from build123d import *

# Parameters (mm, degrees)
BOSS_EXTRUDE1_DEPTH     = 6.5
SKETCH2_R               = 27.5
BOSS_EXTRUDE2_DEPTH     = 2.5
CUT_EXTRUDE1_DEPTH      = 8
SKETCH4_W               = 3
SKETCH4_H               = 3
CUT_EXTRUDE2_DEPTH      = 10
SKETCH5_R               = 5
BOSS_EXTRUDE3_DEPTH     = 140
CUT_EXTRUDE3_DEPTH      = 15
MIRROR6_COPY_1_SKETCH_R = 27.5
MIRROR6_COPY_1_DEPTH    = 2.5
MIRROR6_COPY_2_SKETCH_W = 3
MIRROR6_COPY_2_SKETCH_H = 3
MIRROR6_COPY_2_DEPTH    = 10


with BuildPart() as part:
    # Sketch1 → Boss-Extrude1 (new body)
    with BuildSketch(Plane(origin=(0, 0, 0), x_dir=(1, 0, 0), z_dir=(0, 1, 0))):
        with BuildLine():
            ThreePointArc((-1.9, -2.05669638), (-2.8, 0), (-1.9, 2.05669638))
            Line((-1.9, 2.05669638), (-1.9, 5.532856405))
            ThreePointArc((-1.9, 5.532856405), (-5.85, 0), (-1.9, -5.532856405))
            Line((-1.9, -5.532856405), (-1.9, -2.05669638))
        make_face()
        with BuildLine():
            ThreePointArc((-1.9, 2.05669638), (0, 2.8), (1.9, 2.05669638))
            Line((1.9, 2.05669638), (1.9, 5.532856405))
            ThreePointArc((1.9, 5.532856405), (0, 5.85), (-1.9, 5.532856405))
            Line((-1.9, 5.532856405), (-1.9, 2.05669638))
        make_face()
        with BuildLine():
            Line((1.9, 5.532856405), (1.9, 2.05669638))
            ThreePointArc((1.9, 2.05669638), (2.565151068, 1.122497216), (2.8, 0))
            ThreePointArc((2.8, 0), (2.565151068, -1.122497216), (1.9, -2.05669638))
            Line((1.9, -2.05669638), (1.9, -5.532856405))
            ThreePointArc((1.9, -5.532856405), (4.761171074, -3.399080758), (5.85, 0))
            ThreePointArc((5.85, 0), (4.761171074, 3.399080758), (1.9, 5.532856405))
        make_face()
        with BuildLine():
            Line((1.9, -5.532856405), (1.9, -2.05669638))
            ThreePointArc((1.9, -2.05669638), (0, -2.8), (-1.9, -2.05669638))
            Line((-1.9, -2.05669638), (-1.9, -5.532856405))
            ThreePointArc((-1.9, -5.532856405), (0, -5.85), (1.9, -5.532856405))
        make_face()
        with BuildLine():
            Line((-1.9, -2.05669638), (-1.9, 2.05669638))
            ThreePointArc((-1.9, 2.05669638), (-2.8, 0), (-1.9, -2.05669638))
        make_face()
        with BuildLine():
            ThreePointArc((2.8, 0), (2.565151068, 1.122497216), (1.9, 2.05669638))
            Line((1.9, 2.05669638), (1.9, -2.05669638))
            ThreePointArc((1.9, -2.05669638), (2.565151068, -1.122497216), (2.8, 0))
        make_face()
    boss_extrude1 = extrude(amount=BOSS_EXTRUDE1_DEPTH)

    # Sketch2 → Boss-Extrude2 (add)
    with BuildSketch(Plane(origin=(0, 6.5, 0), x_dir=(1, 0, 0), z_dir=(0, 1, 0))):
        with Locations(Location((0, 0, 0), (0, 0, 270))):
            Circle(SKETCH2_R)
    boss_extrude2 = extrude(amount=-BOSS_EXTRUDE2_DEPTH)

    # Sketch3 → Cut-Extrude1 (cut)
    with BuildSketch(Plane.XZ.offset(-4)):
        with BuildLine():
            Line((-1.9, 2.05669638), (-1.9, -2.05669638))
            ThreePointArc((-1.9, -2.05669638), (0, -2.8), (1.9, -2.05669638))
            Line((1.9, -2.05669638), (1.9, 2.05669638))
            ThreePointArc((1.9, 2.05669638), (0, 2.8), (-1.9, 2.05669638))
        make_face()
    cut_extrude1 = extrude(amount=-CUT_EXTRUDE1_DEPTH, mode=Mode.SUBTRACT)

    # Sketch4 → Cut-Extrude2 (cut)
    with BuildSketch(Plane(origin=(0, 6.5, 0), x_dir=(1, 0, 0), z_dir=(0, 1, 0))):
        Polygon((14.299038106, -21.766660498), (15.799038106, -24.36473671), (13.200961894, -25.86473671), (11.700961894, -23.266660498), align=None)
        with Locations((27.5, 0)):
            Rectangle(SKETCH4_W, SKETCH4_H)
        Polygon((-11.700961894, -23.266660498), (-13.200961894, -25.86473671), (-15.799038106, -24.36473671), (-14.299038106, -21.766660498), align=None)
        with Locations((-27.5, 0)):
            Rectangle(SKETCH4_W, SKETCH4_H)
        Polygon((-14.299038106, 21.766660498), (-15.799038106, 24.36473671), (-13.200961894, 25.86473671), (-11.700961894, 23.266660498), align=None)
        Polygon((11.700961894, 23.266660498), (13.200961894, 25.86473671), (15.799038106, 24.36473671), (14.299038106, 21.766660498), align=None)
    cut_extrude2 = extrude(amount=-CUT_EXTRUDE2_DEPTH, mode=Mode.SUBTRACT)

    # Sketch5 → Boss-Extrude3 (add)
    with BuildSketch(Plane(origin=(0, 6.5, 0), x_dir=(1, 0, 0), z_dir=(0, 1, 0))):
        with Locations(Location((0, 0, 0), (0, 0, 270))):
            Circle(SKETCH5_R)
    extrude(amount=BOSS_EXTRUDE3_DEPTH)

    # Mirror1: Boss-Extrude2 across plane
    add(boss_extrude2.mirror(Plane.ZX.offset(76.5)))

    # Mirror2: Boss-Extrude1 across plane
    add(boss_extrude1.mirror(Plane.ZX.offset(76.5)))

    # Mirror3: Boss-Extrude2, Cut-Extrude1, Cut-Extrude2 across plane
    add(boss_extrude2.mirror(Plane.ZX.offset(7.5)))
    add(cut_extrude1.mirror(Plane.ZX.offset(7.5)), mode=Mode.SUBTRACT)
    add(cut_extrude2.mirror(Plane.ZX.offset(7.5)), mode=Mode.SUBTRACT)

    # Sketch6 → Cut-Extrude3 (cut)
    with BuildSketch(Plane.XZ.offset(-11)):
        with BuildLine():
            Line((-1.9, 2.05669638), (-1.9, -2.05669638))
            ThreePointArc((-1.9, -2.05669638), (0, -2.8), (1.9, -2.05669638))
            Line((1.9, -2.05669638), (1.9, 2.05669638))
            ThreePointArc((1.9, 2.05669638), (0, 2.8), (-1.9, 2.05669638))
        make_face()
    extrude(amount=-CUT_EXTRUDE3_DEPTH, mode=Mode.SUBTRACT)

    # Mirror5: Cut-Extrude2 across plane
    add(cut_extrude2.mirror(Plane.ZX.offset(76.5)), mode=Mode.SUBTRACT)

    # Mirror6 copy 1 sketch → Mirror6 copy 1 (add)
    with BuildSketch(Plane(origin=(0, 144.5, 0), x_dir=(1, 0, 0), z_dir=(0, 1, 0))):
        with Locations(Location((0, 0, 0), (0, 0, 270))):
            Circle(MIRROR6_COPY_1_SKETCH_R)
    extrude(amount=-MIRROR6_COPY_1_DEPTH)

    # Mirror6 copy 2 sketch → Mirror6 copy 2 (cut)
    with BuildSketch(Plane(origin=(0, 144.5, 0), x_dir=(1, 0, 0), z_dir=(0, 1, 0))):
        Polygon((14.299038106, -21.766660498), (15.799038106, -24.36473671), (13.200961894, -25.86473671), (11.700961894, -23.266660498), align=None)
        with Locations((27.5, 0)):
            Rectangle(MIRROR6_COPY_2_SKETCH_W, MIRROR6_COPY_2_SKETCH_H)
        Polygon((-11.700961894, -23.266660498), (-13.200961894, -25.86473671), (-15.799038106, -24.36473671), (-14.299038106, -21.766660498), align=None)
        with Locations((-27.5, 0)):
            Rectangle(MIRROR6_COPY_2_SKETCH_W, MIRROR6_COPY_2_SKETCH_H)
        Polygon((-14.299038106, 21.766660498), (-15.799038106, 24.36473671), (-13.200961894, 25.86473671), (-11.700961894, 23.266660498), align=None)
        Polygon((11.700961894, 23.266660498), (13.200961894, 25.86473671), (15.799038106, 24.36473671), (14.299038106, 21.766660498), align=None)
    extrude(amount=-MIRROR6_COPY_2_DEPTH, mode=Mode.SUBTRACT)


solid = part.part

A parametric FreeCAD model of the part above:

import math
import FreeCAD as App
import Part
import Sketcher
from FreeCAD import Vector
Q = App.Units.Quantity

doc = App.newDocument("Part")
params = doc.addObject("Spreadsheet::Sheet", "Params")
for row, (alias, value) in enumerate([
    ("sketch1_radius", "2.8 mm"),
    ("sketch1_radius2", "5.85 mm"),
    ("pad1_length", "6.5 mm"),
    ("sketch2_diameter", "55 mm"),
    ("pad2_length", "2.5 mm"),
    ("sketch3_radius", "2.8 mm"),
    ("pocket1_length", "8 mm"),
    ("sketch4_width", "3 mm"),
    ("sketch4_length", "3 mm"),
    ("pocket2_length", "10 mm"),
    ("sketch5_diameter", "10 mm"),
    ("pad3_length", "140 mm"),
    ("sketch6_radius", "2.8 mm"),
    ("pocket3_length", "15 mm"),
    ("sketch7_diameter", "55 mm"),
    ("pad4_length", "2.5 mm"),
    ("sketch8_width", "3 mm"),
    ("sketch8_length", "3 mm"),
    ("pocket4_length", "10 mm"),
], start=1):
    params.set(f"A{row}", alias)
    params.set(f"B{row}", "=" + value)
    params.setAlias(f"B{row}", alias)

body = doc.addObject("PartDesign::Body", "Body")

# Sketch on XZ plane
sketch1 = doc.addObject("Sketcher::SketchObject", "Sketch")
body.addObject(sketch1)
sketch1.AttachmentSupport = (doc.XZ_Plane, [""])
sketch1.MapMode = "FlatFace"
sketch1.addGeometry(Part.ArcOfCircle(Part.Circle(Vector(0, 0, 0), Vector(0, 0, 1), 5.9), math.radians(0), math.radians(71)), False)
sketch1.addGeometry(Part.ArcOfCircle(Part.Circle(Vector(0, 0, 0), Vector(0, 0, 1), 5.9), math.radians(-71), math.radians(0)), False)
sketch1.addGeometry(Part.ArcOfCircle(Part.Circle(Vector(0, 0, 0), Vector(0, 0, 1), 5.8), math.radians(-109), math.radians(-71)), False)
sketch1.addGeometry(Part.ArcOfCircle(Part.Circle(Vector(0, 0, 0), Vector(0, 0, 1), 5.8), math.radians(109), math.radians(251)), False)
sketch1.addGeometry(Part.ArcOfCircle(Part.Circle(Vector(0, 0, 0), Vector(0, 0, 1), 5.8), math.radians(71), math.radians(109)), False)
sketch1.addGeometry(Part.ArcOfCircle(Part.Circle(Vector(0, 0, 0), Vector(0, 0, 1), 2.8), math.radians(-133), math.radians(-47)), False)
sketch1.addGeometry(Part.LineSegment(Vector(1.9, -2.1, 0), Vector(1.9, 2.1, 0)), False)
sketch1.addGeometry(Part.ArcOfCircle(Part.Circle(Vector(0, 0, 0), Vector(0, 0, 1), 2.8), math.radians(47), math.radians(133)), False)
sketch1.addGeometry(Part.LineSegment(Vector(-1.9, 2.1, 0), Vector(-1.9, -2.1, 0)), False)
sketch1.addConstraint(Sketcher.Constraint("Tangent", 0, 1, 1, 2))
sketch1.addConstraint(Sketcher.Constraint("Tangent", 1, 1, 2, 2))
sketch1.addConstraint(Sketcher.Constraint("Tangent", 2, 1, 3, 2))
sketch1.addConstraint(Sketcher.Constraint("Tangent", 3, 1, 4, 2))
sketch1.addConstraint(Sketcher.Constraint("Tangent", 4, 1, 0, 2))
sketch1.addConstraint(Sketcher.Constraint("Coincident", 5, 2, 6, 1))
sketch1.addConstraint(Sketcher.Constraint("Coincident", 6, 2, 7, 1))
sketch1.addConstraint(Sketcher.Constraint("Coincident", 7, 2, 8, 1))
sketch1.addConstraint(Sketcher.Constraint("Coincident", 8, 2, 5, 1))
sketch1.addConstraint(Sketcher.Constraint("Vertical", 6))
sketch1.addConstraint(Sketcher.Constraint("Vertical", 8))
sketch1.addConstraint(Sketcher.Constraint("Coincident", 0, 3, -1, 1))
sketch1.addConstraint(Sketcher.Constraint("Coincident", 2, 3, -1, 1))
sketch1.addConstraint(Sketcher.Constraint("Coincident", 5, 3, -1, 1))
sketch1.addConstraint(Sketcher.Constraint("Coincident", 7, 3, -1, 1))
sketch1.addConstraint(Sketcher.Constraint("Equal", 5, 7))
sketch1.addConstraint(Sketcher.Constraint("PointOnObject", 0, 1, -1))
sketch1.addConstraint(Sketcher.Constraint("Horizontal", 1, 1, 2, 1))
sketch1.addConstraint(Sketcher.Constraint("Horizontal", 3, 1, 4, 1))
sketch1.addConstraint(Sketcher.Constraint("Horizontal", 6, 2, 7, 2))
sketch1.addConstraint(Sketcher.Constraint("Vertical", 2, 1, 3, 1))
sketch1.addConstraint(Sketcher.Constraint("Vertical", 4, 1, 5, 2))
sketch1.addConstraint(Sketcher.Constraint("Radius", 5, Q("2.8 mm")))
sketch1.addConstraint(Sketcher.Constraint("Radius", 0, Q("5.85 mm")))
sketch1.addConstraint(Sketcher.Constraint("DistanceX", -1, 1, 1, 1, Q("1.9 mm")))
sketch1.setExpression("Constraints[22]", "Params.sketch1_radius")
sketch1.setExpression("Constraints[23]", "Params.sketch1_radius2")
pad1 = doc.addObject("PartDesign::Pad", "Pad")
body.addObject(pad1)
pad1.Profile = sketch1
pad1.setExpression("Length", "Params.pad1_length")
pad1.Reversed = True

# Sketch on XZ plane
sketch2 = doc.addObject("Sketcher::SketchObject", "Sketch001")
body.addObject(sketch2)
sketch2.AttachmentSupport = (doc.XZ_Plane, [""])
sketch2.MapMode = "FlatFace"
sketch2.AttachmentOffset = App.Placement(Vector(0, 0, -6.5), App.Rotation())
sketch2.addGeometry(Part.Circle(Vector(0, 0, 0), Vector(0, 0, 1), 28), False)
sketch2.addConstraint(Sketcher.Constraint("Coincident", 0, 3, -1, 1))
sketch2.addConstraint(Sketcher.Constraint("Diameter", 0, Q("55 mm")))
sketch2.setExpression("Constraints[1]", "Params.sketch2_diameter")
pad2 = doc.addObject("PartDesign::Pad", "Pad001")
body.addObject(pad2)
pad2.Profile = sketch2
pad2.setExpression("Length", "Params.pad2_length")

# Sketch on XZ plane
sketch3 = doc.addObject("Sketcher::SketchObject", "Sketch002")
body.addObject(sketch3)
sketch3.AttachmentSupport = (doc.XZ_Plane, [""])
sketch3.MapMode = "FlatFace"
sketch3.AttachmentOffset = App.Placement(Vector(0, 0, -4), App.Rotation())
sketch3.addGeometry(Part.LineSegment(Vector(-1.9, 2.1, 0), Vector(-1.9, -2.1, 0)), False)
sketch3.addGeometry(Part.ArcOfCircle(Part.Circle(Vector(0, 0, 0), Vector(0, 0, 1), 2.8), math.radians(-133), math.radians(-47)), False)
sketch3.addGeometry(Part.LineSegment(Vector(1.9, -2.1, 0), Vector(1.9, 2.1, 0)), False)
sketch3.addGeometry(Part.ArcOfCircle(Part.Circle(Vector(0, 0, 0), Vector(0, 0, 1), 2.8), math.radians(47), math.radians(133)), False)
sketch3.addConstraint(Sketcher.Constraint("Coincident", 0, 2, 1, 1))
sketch3.addConstraint(Sketcher.Constraint("Coincident", 1, 2, 2, 1))
sketch3.addConstraint(Sketcher.Constraint("Coincident", 2, 2, 3, 1))
sketch3.addConstraint(Sketcher.Constraint("Coincident", 3, 2, 0, 1))
sketch3.addConstraint(Sketcher.Constraint("Vertical", 0))
sketch3.addConstraint(Sketcher.Constraint("Vertical", 2))
sketch3.addConstraint(Sketcher.Constraint("Coincident", 1, 3, -1, 1))
sketch3.addConstraint(Sketcher.Constraint("Coincident", 3, 3, -1, 1))
sketch3.addConstraint(Sketcher.Constraint("Equal", 1, 3))
sketch3.addConstraint(Sketcher.Constraint("Horizontal", 0, 2, 1, 2))
sketch3.addConstraint(Sketcher.Constraint("Radius", 1, Q("2.8 mm")))
sketch3.addConstraint(Sketcher.Constraint("DistanceX", 0, 2, -1, 1, Q("1.9 mm")))
sketch3.setExpression("Constraints[10]", "Params.sketch3_radius")
pocket1 = doc.addObject("PartDesign::Pocket", "Pocket")
body.addObject(pocket1)
pocket1.Profile = sketch3
pocket1.setExpression("Length", "Params.pocket1_length")

# Sketch on XZ plane
sketch4 = doc.addObject("Sketcher::SketchObject", "Sketch003")
body.addObject(sketch4)
sketch4.AttachmentSupport = (doc.XZ_Plane, [""])
sketch4.MapMode = "FlatFace"
sketch4.AttachmentOffset = App.Placement(Vector(0, 0, -6.5), App.Rotation())
sketch4.addGeometry(Part.LineSegment(Vector(15.8, 24.4, 0), Vector(14.3, 21.8, 0)), False)
sketch4.addGeometry(Part.LineSegment(Vector(14.3, 21.8, 0), Vector(11.7, 23.3, 0)), False)
sketch4.addGeometry(Part.LineSegment(Vector(11.7, 23.3, 0), Vector(13.2, 25.9, 0)), False)
sketch4.addGeometry(Part.LineSegment(Vector(13.2, 25.9, 0), Vector(15.8, 24.4, 0)), False)
sketch4.addGeometry(Part.LineSegment(Vector(26, -1.5, 0), Vector(26, 1.5, 0)), False)
sketch4.addGeometry(Part.LineSegment(Vector(26, 1.5, 0), Vector(29, 1.5, 0)), False)
sketch4.addGeometry(Part.LineSegment(Vector(29, 1.5, 0), Vector(29, -1.5, 0)), False)
sketch4.addGeometry(Part.LineSegment(Vector(29, -1.5, 0), Vector(26, -1.5, 0)), False)
sketch4.addGeometry(Part.LineSegment(Vector(-13.2, 25.9, 0), Vector(-11.7, 23.3, 0)), False)
sketch4.addGeometry(Part.LineSegment(Vector(-11.7, 23.3, 0), Vector(-14.3, 21.8, 0)), False)
sketch4.addGeometry(Part.LineSegment(Vector(-14.3, 21.8, 0), Vector(-15.8, 24.4, 0)), False)
sketch4.addGeometry(Part.LineSegment(Vector(-15.8, 24.4, 0), Vector(-13.2, 25.9, 0)), False)
sketch4.addGeometry(Part.LineSegment(Vector(-29, -1.5, 0), Vector(-29, 1.5, 0)), False)
sketch4.addGeometry(Part.LineSegment(Vector(-29, 1.5, 0), Vector(-26, 1.5, 0)), False)
sketch4.addGeometry(Part.LineSegment(Vector(-26, 1.5, 0), Vector(-26, -1.5, 0)), False)
sketch4.addGeometry(Part.LineSegment(Vector(-26, -1.5, 0), Vector(-29, -1.5, 0)), False)
sketch4.addGeometry(Part.LineSegment(Vector(-15.8, -24.4, 0), Vector(-14.3, -21.8, 0)), False)
sketch4.addGeometry(Part.LineSegment(Vector(-14.3, -21.8, 0), Vector(-11.7, -23.3, 0)), False)
sketch4.addGeometry(Part.LineSegment(Vector(-11.7, -23.3, 0), Vector(-13.2, -25.9, 0)), False)
sketch4.addGeometry(Part.LineSegment(Vector(-13.2, -25.9, 0), Vector(-15.8, -24.4, 0)), False)
sketch4.addGeometry(Part.LineSegment(Vector(13.2, -25.9, 0), Vector(11.7, -23.3, 0)), False)
sketch4.addGeometry(Part.LineSegment(Vector(11.7, -23.3, 0), Vector(14.3, -21.8, 0)), False)
sketch4.addGeometry(Part.LineSegment(Vector(14.3, -21.8, 0), Vector(15.8, -24.4, 0)), False)
sketch4.addGeometry(Part.LineSegment(Vector(15.8, -24.4, 0), Vector(13.2, -25.9, 0)), False)
sketch4.addConstraint(Sketcher.Constraint("Coincident", 0, 2, 1, 1))
sketch4.addConstraint(Sketcher.Constraint("Coincident", 1, 2, 2, 1))
sketch4.addConstraint(Sketcher.Constraint("Coincident", 2, 2, 3, 1))
sketch4.addConstraint(Sketcher.Constraint("Coincident", 3, 2, 0, 1))
sketch4.addConstraint(Sketcher.Constraint("Coincident", 4, 2, 5, 1))
sketch4.addConstraint(Sketcher.Constraint("Coincident", 5, 2, 6, 1))
sketch4.addConstraint(Sketcher.Constraint("Coincident", 6, 2, 7, 1))
sketch4.addConstraint(Sketcher.Constraint("Coincident", 7, 2, 4, 1))
sketch4.addConstraint(Sketcher.Constraint("Coincident", 8, 2, 9, 1))
sketch4.addConstraint(Sketcher.Constraint("Coincident", 9, 2, 10, 1))
sketch4.addConstraint(Sketcher.Constraint("Coincident", 10, 2, 11, 1))
sketch4.addConstraint(Sketcher.Constraint("Coincident", 11, 2, 8, 1))
sketch4.addConstraint(Sketcher.Constraint("Coincident", 12, 2, 13, 1))
sketch4.addConstraint(Sketcher.Constraint("Coincident", 13, 2, 14, 1))
sketch4.addConstraint(Sketcher.Constraint("Coincident", 14, 2, 15, 1))
sketch4.addConstraint(Sketcher.Constraint("Coincident", 15, 2, 12, 1))
sketch4.addConstraint(Sketcher.Constraint("Coincident", 16, 2, 17, 1))
sketch4.addConstraint(Sketcher.Constraint("Coincident", 17, 2, 18, 1))
sketch4.addConstraint(Sketcher.Constraint("Coincident", 18, 2, 19, 1))
sketch4.addConstraint(Sketcher.Constraint("Coincident", 19, 2, 16, 1))
sketch4.addConstraint(Sketcher.Constraint("Coincident", 20, 2, 21, 1))
sketch4.addConstraint(Sketcher.Constraint("Coincident", 21, 2, 22, 1))
sketch4.addConstraint(Sketcher.Constraint("Coincident", 22, 2, 23, 1))
sketch4.addConstraint(Sketcher.Constraint("Coincident", 23, 2, 20, 1))
sketch4.addConstraint(Sketcher.Constraint("Vertical", 4))
sketch4.addConstraint(Sketcher.Constraint("Horizontal", 5))
sketch4.addConstraint(Sketcher.Constraint("Vertical", 6))
sketch4.addConstraint(Sketcher.Constraint("Horizontal", 7))
sketch4.addConstraint(Sketcher.Constraint("Vertical", 12))
sketch4.addConstraint(Sketcher.Constraint("Horizontal", 13))
sketch4.addConstraint(Sketcher.Constraint("Vertical", 14))
sketch4.addConstraint(Sketcher.Constraint("Horizontal", 15))
sketch4.addConstraint(Sketcher.Constraint("Symmetric", 6, 2, 12, 2, -1, 1))
sketch4.addConstraint(Sketcher.Constraint("Symmetric", 4, 2, 14, 2, -1, 1))
sketch4.addConstraint(Sketcher.Constraint("Symmetric", 0, 2, 16, 2, -1, 1))
sketch4.addConstraint(Sketcher.Constraint("Symmetric", 1, 2, 17, 2, -1, 1))
sketch4.addConstraint(Sketcher.Constraint("Symmetric", 2, 2, 18, 2, -1, 1))
sketch4.addConstraint(Sketcher.Constraint("Symmetric", 3, 2, 19, 2, -1, 1))
sketch4.addConstraint(Sketcher.Constraint("Symmetric", 8, 2, 20, 2, -1, 1))
sketch4.addConstraint(Sketcher.Constraint("Symmetric", 9, 2, 21, 2, -1, 1))
sketch4.addConstraint(Sketcher.Constraint("Symmetric", 10, 2, 22, 2, -1, 1))
sketch4.addConstraint(Sketcher.Constraint("Symmetric", 11, 2, 23, 2, -1, 1))
sketch4.addConstraint(Sketcher.Constraint("Symmetric", 1, 2, 8, 2, -2))
sketch4.addConstraint(Sketcher.Constraint("Symmetric", 0, 2, 9, 2, -2))
sketch4.addConstraint(Sketcher.Constraint("Symmetric", 3, 2, 10, 2, -2))
sketch4.addConstraint(Sketcher.Constraint("Symmetric", 2, 2, 11, 2, -2))
sketch4.addConstraint(Sketcher.Constraint("Perpendicular", 0, 1))
sketch4.addConstraint(Sketcher.Constraint("Perpendicular", 1, 2))
sketch4.addConstraint(Sketcher.Constraint("Perpendicular", 2, 3))
sketch4.addConstraint(Sketcher.Constraint("Horizontal", 5, 2, 12, 2))
sketch4.addConstraint(Sketcher.Constraint("Equal", 15, 4))
sketch4.addConstraint(Sketcher.Constraint("Equal", 0, 1))
sketch4.addConstraint(Sketcher.Constraint("DistanceX", 5, 1, 5, 2, Q("3 mm")))
sketch4.addConstraint(Sketcher.Constraint("Angle", 0, Q("-120 deg")))
sketch4.addConstraint(Sketcher.Constraint("Distance", 0, Q("3 mm")))
sketch4.addConstraint(Sketcher.Constraint("DistanceX", -1, 1, 4, 2, Q("26 mm")))
sketch4.addConstraint(Sketcher.Constraint("DistanceX", 8, 2, 0, 2, Q("26 mm")))
sketch4.addConstraint(Sketcher.Constraint("DistanceY", -1, 1, 0, 2, Q("21.76666 mm")))
sketch4.setExpression("Constraints[52]", "Params.sketch4_width")
sketch4.setExpression("Constraints[54]", "Params.sketch4_length")
pocket2 = doc.addObject("PartDesign::Pocket", "Pocket001")
body.addObject(pocket2)
pocket2.Profile = sketch4
pocket2.setExpression("Length", "Params.pocket2_length")
pocket2.Reversed = True

# Sketch on XZ plane
sketch5 = doc.addObject("Sketcher::SketchObject", "Sketch004")
body.addObject(sketch5)
sketch5.AttachmentSupport = (doc.XZ_Plane, [""])
sketch5.MapMode = "FlatFace"
sketch5.AttachmentOffset = App.Placement(Vector(0, 0, -6.5), App.Rotation())
sketch5.addGeometry(Part.Circle(Vector(0, 0, 0), Vector(0, 0, 1), 5), False)
sketch5.addConstraint(Sketcher.Constraint("Coincident", 0, 3, -1, 1))
sketch5.addConstraint(Sketcher.Constraint("Diameter", 0, Q("10 mm")))
sketch5.setExpression("Constraints[1]", "Params.sketch5_diameter")
pad3 = doc.addObject("PartDesign::Pad", "Pad002")
body.addObject(pad3)
pad3.Profile = sketch5
pad3.setExpression("Length", "Params.pad3_length")
pad3.Reversed = True
doc.recompute()

datumplane = doc.addObject("PartDesign::Plane", "DatumPlane")
body.addObject(datumplane)
datumplane.AttachmentSupport = (doc.XZ_Plane, [""])
datumplane.MapMode = "FlatFace"
datumplane.AttachmentOffset = App.Placement(Vector(0, 0, -76.5), App.Rotation())
mirrored = doc.addObject("PartDesign::Mirrored", "Mirrored")
body.addObject(mirrored)
mirrored.Originals = [pad2]
mirrored.MirrorPlane = (datumplane, [""])
body.Tip = mirrored
doc.recompute()

datumplane2 = doc.addObject("PartDesign::Plane", "DatumPlane001")
body.addObject(datumplane2)
datumplane2.AttachmentSupport = (doc.XZ_Plane, [""])
datumplane2.MapMode = "FlatFace"
datumplane2.AttachmentOffset = App.Placement(Vector(0, 0, -76.5), App.Rotation())
mirrored2 = doc.addObject("PartDesign::Mirrored", "Mirrored001")
body.addObject(mirrored2)
mirrored2.Originals = [pad1]
mirrored2.MirrorPlane = (datumplane2, [""])
body.Tip = mirrored2
doc.recompute()

datumplane3 = doc.addObject("PartDesign::Plane", "DatumPlane002")
body.addObject(datumplane3)
datumplane3.AttachmentSupport = (doc.XZ_Plane, [""])
datumplane3.MapMode = "FlatFace"
datumplane3.AttachmentOffset = App.Placement(Vector(0, 0, -7.5), App.Rotation())
mirrored3 = doc.addObject("PartDesign::Mirrored", "Mirrored002")
body.addObject(mirrored3)
mirrored3.Originals = [pad2, pocket1, pocket2]
mirrored3.MirrorPlane = (datumplane3, [""])
body.Tip = mirrored3

# Sketch on XZ plane
sketch6 = doc.addObject("Sketcher::SketchObject", "Sketch005")
body.addObject(sketch6)
sketch6.AttachmentSupport = (doc.XZ_Plane, [""])
sketch6.MapMode = "FlatFace"
sketch6.AttachmentOffset = App.Placement(Vector(0, 0, -11), App.Rotation())
sketch6.addGeometry(Part.LineSegment(Vector(-1.9, 2.1, 0), Vector(-1.9, -2.1, 0)), False)
sketch6.addGeometry(Part.ArcOfCircle(Part.Circle(Vector(0, 0, 0), Vector(0, 0, 1), 2.8), math.radians(-133), math.radians(-47)), False)
sketch6.addGeometry(Part.LineSegment(Vector(1.9, -2.1, 0), Vector(1.9, 2.1, 0)), False)
sketch6.addGeometry(Part.ArcOfCircle(Part.Circle(Vector(0, 0, 0), Vector(0, 0, 1), 2.8), math.radians(47), math.radians(133)), False)
sketch6.addConstraint(Sketcher.Constraint("Coincident", 0, 2, 1, 1))
sketch6.addConstraint(Sketcher.Constraint("Coincident", 1, 2, 2, 1))
sketch6.addConstraint(Sketcher.Constraint("Coincident", 2, 2, 3, 1))
sketch6.addConstraint(Sketcher.Constraint("Coincident", 3, 2, 0, 1))
sketch6.addConstraint(Sketcher.Constraint("Vertical", 0))
sketch6.addConstraint(Sketcher.Constraint("Vertical", 2))
sketch6.addConstraint(Sketcher.Constraint("Coincident", 1, 3, -1, 1))
sketch6.addConstraint(Sketcher.Constraint("Coincident", 3, 3, -1, 1))
sketch6.addConstraint(Sketcher.Constraint("Equal", 1, 3))
sketch6.addConstraint(Sketcher.Constraint("Horizontal", 0, 2, 1, 2))
sketch6.addConstraint(Sketcher.Constraint("Radius", 1, Q("2.8 mm")))
sketch6.addConstraint(Sketcher.Constraint("DistanceX", 0, 2, -1, 1, Q("1.9 mm")))
sketch6.setExpression("Constraints[10]", "Params.sketch6_radius")
pocket3 = doc.addObject("PartDesign::Pocket", "Pocket002")
body.addObject(pocket3)
pocket3.Profile = sketch6
pocket3.setExpression("Length", "Params.pocket3_length")
doc.recompute()

datumplane4 = doc.addObject("PartDesign::Plane", "DatumPlane003")
body.addObject(datumplane4)
datumplane4.AttachmentSupport = (doc.XZ_Plane, [""])
datumplane4.MapMode = "FlatFace"
datumplane4.AttachmentOffset = App.Placement(Vector(0, 0, -76.5), App.Rotation())
mirrored4 = doc.addObject("PartDesign::Mirrored", "Mirrored003")
body.addObject(mirrored4)
mirrored4.Originals = [pocket2]
mirrored4.MirrorPlane = (datumplane4, [""])
body.Tip = mirrored4

# Sketch on XZ plane
sketch7 = doc.addObject("Sketcher::SketchObject", "Sketch006")
body.addObject(sketch7)
sketch7.AttachmentSupport = (doc.XZ_Plane, [""])
sketch7.MapMode = "FlatFace"
sketch7.AttachmentOffset = App.Placement(Vector(0, 0, -144.5), App.Rotation())
sketch7.addGeometry(Part.Circle(Vector(0, 0, 0), Vector(0, 0, 1), 28), False)
sketch7.addConstraint(Sketcher.Constraint("Coincident", 0, 3, -1, 1))
sketch7.addConstraint(Sketcher.Constraint("Diameter", 0, Q("55 mm")))
sketch7.setExpression("Constraints[1]", "Params.sketch7_diameter")
pad4 = doc.addObject("PartDesign::Pad", "Pad003")
body.addObject(pad4)
pad4.Profile = sketch7
pad4.setExpression("Length", "Params.pad4_length")

# Sketch on XZ plane
sketch8 = doc.addObject("Sketcher::SketchObject", "Sketch007")
body.addObject(sketch8)
sketch8.AttachmentSupport = (doc.XZ_Plane, [""])
sketch8.MapMode = "FlatFace"
sketch8.AttachmentOffset = App.Placement(Vector(0, 0, -144.5), App.Rotation())
sketch8.addGeometry(Part.LineSegment(Vector(15.8, 24.4, 0), Vector(14.3, 21.8, 0)), False)
sketch8.addGeometry(Part.LineSegment(Vector(14.3, 21.8, 0), Vector(11.7, 23.3, 0)), False)
sketch8.addGeometry(Part.LineSegment(Vector(11.7, 23.3, 0), Vector(13.2, 25.9, 0)), False)
sketch8.addGeometry(Part.LineSegment(Vector(13.2, 25.9, 0), Vector(15.8, 24.4, 0)), False)
sketch8.addGeometry(Part.LineSegment(Vector(26, -1.5, 0), Vector(26, 1.5, 0)), False)
sketch8.addGeometry(Part.LineSegment(Vector(26, 1.5, 0), Vector(29, 1.5, 0)), False)
sketch8.addGeometry(Part.LineSegment(Vector(29, 1.5, 0), Vector(29, -1.5, 0)), False)
sketch8.addGeometry(Part.LineSegment(Vector(29, -1.5, 0), Vector(26, -1.5, 0)), False)
sketch8.addGeometry(Part.LineSegment(Vector(-13.2, 25.9, 0), Vector(-11.7, 23.3, 0)), False)
sketch8.addGeometry(Part.LineSegment(Vector(-11.7, 23.3, 0), Vector(-14.3, 21.8, 0)), False)
sketch8.addGeometry(Part.LineSegment(Vector(-14.3, 21.8, 0), Vector(-15.8, 24.4, 0)), False)
sketch8.addGeometry(Part.LineSegment(Vector(-15.8, 24.4, 0), Vector(-13.2, 25.9, 0)), False)
sketch8.addGeometry(Part.LineSegment(Vector(-29, -1.5, 0), Vector(-29, 1.5, 0)), False)
sketch8.addGeometry(Part.LineSegment(Vector(-29, 1.5, 0), Vector(-26, 1.5, 0)), False)
sketch8.addGeometry(Part.LineSegment(Vector(-26, 1.5, 0), Vector(-26, -1.5, 0)), False)
sketch8.addGeometry(Part.LineSegment(Vector(-26, -1.5, 0), Vector(-29, -1.5, 0)), False)
sketch8.addGeometry(Part.LineSegment(Vector(-15.8, -24.4, 0), Vector(-14.3, -21.8, 0)), False)
sketch8.addGeometry(Part.LineSegment(Vector(-14.3, -21.8, 0), Vector(-11.7, -23.3, 0)), False)
sketch8.addGeometry(Part.LineSegment(Vector(-11.7, -23.3, 0), Vector(-13.2, -25.9, 0)), False)
sketch8.addGeometry(Part.LineSegment(Vector(-13.2, -25.9, 0), Vector(-15.8, -24.4, 0)), False)
sketch8.addGeometry(Part.LineSegment(Vector(13.2, -25.9, 0), Vector(11.7, -23.3, 0)), False)
sketch8.addGeometry(Part.LineSegment(Vector(11.7, -23.3, 0), Vector(14.3, -21.8, 0)), False)
sketch8.addGeometry(Part.LineSegment(Vector(14.3, -21.8, 0), Vector(15.8, -24.4, 0)), False)
sketch8.addGeometry(Part.LineSegment(Vector(15.8, -24.4, 0), Vector(13.2, -25.9, 0)), False)
sketch8.addConstraint(Sketcher.Constraint("Coincident", 0, 2, 1, 1))
sketch8.addConstraint(Sketcher.Constraint("Coincident", 1, 2, 2, 1))
sketch8.addConstraint(Sketcher.Constraint("Coincident", 2, 2, 3, 1))
sketch8.addConstraint(Sketcher.Constraint("Coincident", 3, 2, 0, 1))
sketch8.addConstraint(Sketcher.Constraint("Coincident", 4, 2, 5, 1))
sketch8.addConstraint(Sketcher.Constraint("Coincident", 5, 2, 6, 1))
sketch8.addConstraint(Sketcher.Constraint("Coincident", 6, 2, 7, 1))
sketch8.addConstraint(Sketcher.Constraint("Coincident", 7, 2, 4, 1))
sketch8.addConstraint(Sketcher.Constraint("Coincident", 8, 2, 9, 1))
sketch8.addConstraint(Sketcher.Constraint("Coincident", 9, 2, 10, 1))
sketch8.addConstraint(Sketcher.Constraint("Coincident", 10, 2, 11, 1))
sketch8.addConstraint(Sketcher.Constraint("Coincident", 11, 2, 8, 1))
sketch8.addConstraint(Sketcher.Constraint("Coincident", 12, 2, 13, 1))
sketch8.addConstraint(Sketcher.Constraint("Coincident", 13, 2, 14, 1))
sketch8.addConstraint(Sketcher.Constraint("Coincident", 14, 2, 15, 1))
sketch8.addConstraint(Sketcher.Constraint("Coincident", 15, 2, 12, 1))
sketch8.addConstraint(Sketcher.Constraint("Coincident", 16, 2, 17, 1))
sketch8.addConstraint(Sketcher.Constraint("Coincident", 17, 2, 18, 1))
sketch8.addConstraint(Sketcher.Constraint("Coincident", 18, 2, 19, 1))
sketch8.addConstraint(Sketcher.Constraint("Coincident", 19, 2, 16, 1))
sketch8.addConstraint(Sketcher.Constraint("Coincident", 20, 2, 21, 1))
sketch8.addConstraint(Sketcher.Constraint("Coincident", 21, 2, 22, 1))
sketch8.addConstraint(Sketcher.Constraint("Coincident", 22, 2, 23, 1))
sketch8.addConstraint(Sketcher.Constraint("Coincident", 23, 2, 20, 1))
sketch8.addConstraint(Sketcher.Constraint("Vertical", 4))
sketch8.addConstraint(Sketcher.Constraint("Horizontal", 5))
sketch8.addConstraint(Sketcher.Constraint("Vertical", 6))
sketch8.addConstraint(Sketcher.Constraint("Horizontal", 7))
sketch8.addConstraint(Sketcher.Constraint("Vertical", 12))
sketch8.addConstraint(Sketcher.Constraint("Horizontal", 13))
sketch8.addConstraint(Sketcher.Constraint("Vertical", 14))
sketch8.addConstraint(Sketcher.Constraint("Horizontal", 15))
sketch8.addConstraint(Sketcher.Constraint("Symmetric", 6, 2, 12, 2, -1, 1))
sketch8.addConstraint(Sketcher.Constraint("Symmetric", 4, 2, 14, 2, -1, 1))
sketch8.addConstraint(Sketcher.Constraint("Symmetric", 0, 2, 16, 2, -1, 1))
sketch8.addConstraint(Sketcher.Constraint("Symmetric", 1, 2, 17, 2, -1, 1))
sketch8.addConstraint(Sketcher.Constraint("Symmetric", 2, 2, 18, 2, -1, 1))
sketch8.addConstraint(Sketcher.Constraint("Symmetric", 3, 2, 19, 2, -1, 1))
sketch8.addConstraint(Sketcher.Constraint("Symmetric", 8, 2, 20, 2, -1, 1))
sketch8.addConstraint(Sketcher.Constraint("Symmetric", 9, 2, 21, 2, -1, 1))
sketch8.addConstraint(Sketcher.Constraint("Symmetric", 10, 2, 22, 2, -1, 1))
sketch8.addConstraint(Sketcher.Constraint("Symmetric", 11, 2, 23, 2, -1, 1))
sketch8.addConstraint(Sketcher.Constraint("Symmetric", 1, 2, 8, 2, -2))
sketch8.addConstraint(Sketcher.Constraint("Symmetric", 0, 2, 9, 2, -2))
sketch8.addConstraint(Sketcher.Constraint("Symmetric", 3, 2, 10, 2, -2))
sketch8.addConstraint(Sketcher.Constraint("Symmetric", 2, 2, 11, 2, -2))
sketch8.addConstraint(Sketcher.Constraint("Perpendicular", 0, 1))
sketch8.addConstraint(Sketcher.Constraint("Perpendicular", 1, 2))
sketch8.addConstraint(Sketcher.Constraint("Perpendicular", 2, 3))
sketch8.addConstraint(Sketcher.Constraint("Horizontal", 5, 2, 12, 2))
sketch8.addConstraint(Sketcher.Constraint("Equal", 15, 4))
sketch8.addConstraint(Sketcher.Constraint("Equal", 0, 1))
sketch8.addConstraint(Sketcher.Constraint("DistanceX", 5, 1, 5, 2, Q("3 mm")))
sketch8.addConstraint(Sketcher.Constraint("Angle", 0, Q("-120 deg")))
sketch8.addConstraint(Sketcher.Constraint("Distance", 0, Q("3 mm")))
sketch8.addConstraint(Sketcher.Constraint("DistanceX", -1, 1, 4, 2, Q("26 mm")))
sketch8.addConstraint(Sketcher.Constraint("DistanceX", 8, 2, 0, 2, Q("26 mm")))
sketch8.addConstraint(Sketcher.Constraint("DistanceY", -1, 1, 0, 2, Q("21.76666 mm")))
sketch8.setExpression("Constraints[52]", "Params.sketch8_width")
sketch8.setExpression("Constraints[54]", "Params.sketch8_length")
pocket4 = doc.addObject("PartDesign::Pocket", "Pocket003")
body.addObject(pocket4)
pocket4.Profile = sketch8
pocket4.setExpression("Length", "Params.pocket4_length")
pocket4.Reversed = True

doc.recompute()
